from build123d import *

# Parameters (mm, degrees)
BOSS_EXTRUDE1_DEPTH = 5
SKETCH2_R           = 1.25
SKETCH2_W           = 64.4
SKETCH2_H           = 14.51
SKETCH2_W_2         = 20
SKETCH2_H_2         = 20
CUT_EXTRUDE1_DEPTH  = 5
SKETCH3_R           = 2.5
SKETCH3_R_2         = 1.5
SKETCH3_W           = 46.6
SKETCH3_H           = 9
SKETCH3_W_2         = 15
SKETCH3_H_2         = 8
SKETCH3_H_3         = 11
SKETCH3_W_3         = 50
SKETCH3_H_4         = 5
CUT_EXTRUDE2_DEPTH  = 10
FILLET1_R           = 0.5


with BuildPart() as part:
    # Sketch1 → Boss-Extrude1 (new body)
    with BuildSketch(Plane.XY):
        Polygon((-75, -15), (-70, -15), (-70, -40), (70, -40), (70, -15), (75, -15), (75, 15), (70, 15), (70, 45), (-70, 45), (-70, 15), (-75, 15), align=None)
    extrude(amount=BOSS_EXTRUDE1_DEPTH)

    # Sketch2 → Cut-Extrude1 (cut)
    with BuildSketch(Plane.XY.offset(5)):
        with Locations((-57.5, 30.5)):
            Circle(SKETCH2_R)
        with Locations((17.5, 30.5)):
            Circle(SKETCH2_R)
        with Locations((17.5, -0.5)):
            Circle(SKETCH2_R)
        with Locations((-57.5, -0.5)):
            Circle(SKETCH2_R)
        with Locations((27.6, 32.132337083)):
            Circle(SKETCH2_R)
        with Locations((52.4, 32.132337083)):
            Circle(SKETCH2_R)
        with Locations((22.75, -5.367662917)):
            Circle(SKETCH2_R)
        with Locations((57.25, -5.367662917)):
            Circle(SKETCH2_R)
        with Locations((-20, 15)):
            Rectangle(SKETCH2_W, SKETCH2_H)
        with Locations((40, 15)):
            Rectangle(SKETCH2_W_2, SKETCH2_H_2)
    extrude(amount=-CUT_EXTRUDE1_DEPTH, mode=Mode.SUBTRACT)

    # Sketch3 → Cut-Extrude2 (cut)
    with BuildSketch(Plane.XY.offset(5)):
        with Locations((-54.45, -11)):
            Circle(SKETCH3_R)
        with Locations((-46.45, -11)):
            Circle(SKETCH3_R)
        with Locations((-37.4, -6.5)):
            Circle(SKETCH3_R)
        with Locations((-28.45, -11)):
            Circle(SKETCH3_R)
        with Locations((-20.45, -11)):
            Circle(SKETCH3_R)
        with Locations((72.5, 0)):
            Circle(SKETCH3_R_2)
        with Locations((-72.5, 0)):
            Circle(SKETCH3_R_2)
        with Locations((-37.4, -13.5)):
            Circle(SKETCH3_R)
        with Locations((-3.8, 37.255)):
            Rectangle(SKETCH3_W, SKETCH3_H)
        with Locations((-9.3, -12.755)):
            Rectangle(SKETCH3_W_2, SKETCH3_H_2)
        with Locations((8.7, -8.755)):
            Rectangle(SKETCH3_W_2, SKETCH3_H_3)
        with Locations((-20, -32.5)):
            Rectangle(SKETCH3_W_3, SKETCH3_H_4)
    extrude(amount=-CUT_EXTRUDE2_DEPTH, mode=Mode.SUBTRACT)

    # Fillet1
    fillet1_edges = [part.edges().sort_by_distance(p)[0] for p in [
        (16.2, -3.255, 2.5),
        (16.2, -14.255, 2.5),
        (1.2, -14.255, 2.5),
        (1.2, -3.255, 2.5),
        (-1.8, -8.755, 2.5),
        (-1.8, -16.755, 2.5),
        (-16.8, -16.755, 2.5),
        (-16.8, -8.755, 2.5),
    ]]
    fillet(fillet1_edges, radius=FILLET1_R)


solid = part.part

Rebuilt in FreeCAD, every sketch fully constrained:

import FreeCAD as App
import Part
import Sketcher
from FreeCAD import Vector
Q = App.Units.Quantity


def edges_at(feature, points):
    """Names of the edges that pass closest to the given points."""
    edges = feature.Shape.Edges
    near = lambda p: min(range(len(edges)), key=lambda i: edges[i].distToShape(Part.Vertex(*p))[0])
    return sorted({f"Edge{near(p) + 1}" for p in points})

doc = App.newDocument("Part")
body = doc.addObject("PartDesign::Body", "Body")

# Sketch on XY plane
sketch1 = doc.addObject("Sketcher::SketchObject", "Sketch")
body.addObject(sketch1)
sketch1.AttachmentSupport = (doc.XY_Plane, [""])
sketch1.MapMode = "FlatFace"
sketch1.addGeometry([
    Part.LineSegment(Vector(-75, -15, 0), Vector(-70, -15, 0)),  # 0
    Part.LineSegment(Vector(-70, -15, 0), Vector(-70, -40, 0)),  # 1
    Part.LineSegment(Vector(-70, -40, 0), Vector(70, -40, 0)),  # 2
    Part.LineSegment(Vector(70, -40, 0), Vector(70, -15, 0)),  # 3
    Part.LineSegment(Vector(70, -15, 0), Vector(75, -15, 0)),  # 4
    Part.LineSegment(Vector(75, -15, 0), Vector(75, 15, 0)),  # 5
    Part.LineSegment(Vector(75, 15, 0), Vector(70, 15, 0)),  # 6
    Part.LineSegment(Vector(70, 15, 0), Vector(70, 45, 0)),  # 7
    Part.LineSegment(Vector(70, 45, 0), Vector(-70, 45, 0)),  # 8
    Part.LineSegment(Vector(-70, 45, 0), Vector(-70, 15, 0)),  # 9
    Part.LineSegment(Vector(-70, 15, 0), Vector(-75, 15, 0)),  # 10
    Part.LineSegment(Vector(-75, 15, 0), Vector(-75, -15, 0)),  # 11
], False)
sketch1.addConstraint([
    Sketcher.Constraint("Coincident", 0, 2, 1, 1),
    Sketcher.Constraint("Coincident", 1, 2, 2, 1),
    Sketcher.Constraint("Coincident", 2, 2, 3, 1),
    Sketcher.Constraint("Coincident", 3, 2, 4, 1),
    Sketcher.Constraint("Coincident", 4, 2, 5, 1),
    Sketcher.Constraint("Coincident", 5, 2, 6, 1),
    Sketcher.Constraint("Coincident", 6, 2, 7, 1),
    Sketcher.Constraint("Coincident", 7, 2, 8, 1),
    Sketcher.Constraint("Coincident", 8, 2, 9, 1),
    Sketcher.Constraint("Coincident", 9, 2, 10, 1),
    Sketcher.Constraint("Coincident", 10, 2, 11, 1),
    Sketcher.Constraint("Coincident", 11, 2, 0, 1),
    Sketcher.Constraint("Horizontal", 0),
    Sketcher.Constraint("Vertical", 1),
    Sketcher.Constraint("Horizontal", 2),
    Sketcher.Constraint("Vertical", 3),
    Sketcher.Constraint("Horizontal", 4),
    Sketcher.Constraint("Vertical", 5),
    Sketcher.Constraint("Horizontal", 6),
    Sketcher.Constraint("Vertical", 7),
    Sketcher.Constraint("Horizontal", 8),
    Sketcher.Constraint("Vertical", 9),
    Sketcher.Constraint("Horizontal", 10),
    Sketcher.Constraint("Vertical", 11),
    Sketcher.Constraint("Symmetric", 0, 2, 6, 2, -1, 1),
    Sketcher.Constraint("Symmetric", 3, 2, 9, 2, -1, 1),
    Sketcher.Constraint("Symmetric", 0, 2, 3, 2, -2),
    Sketcher.Constraint("Equal", 0, 4),
    Sketcher.Constraint("Equal", 5, 7),
    Sketcher.Constraint("DistanceX", 0, 1, 0, 2, Q("5 mm")),
    Sketcher.Constraint("DistanceX", 2, 1, 2, 2, Q("140 mm")),
    Sketcher.Constraint("DistanceY", 1, 2, 1, 1, Q("25 mm")),
    Sketcher.Constraint("DistanceY", 5, 1, 5, 2, Q("30 mm")),
])
pad1 = doc.addObject("PartDesign::Pad", "Pad")
body.addObject(pad1)
pad1.Profile = sketch1
pad1.Length = 5

# Sketch on XY plane
sketch2 = doc.addObject("Sketcher::SketchObject", "Sketch001")
body.addObject(sketch2)
sketch2.AttachmentSupport = (doc.XY_Plane, [""])
sketch2.MapMode = "FlatFace"
sketch2.AttachmentOffset = App.Placement(Vector(0, 0, 5), App.Rotation())
sketch2.addGeometry([
    Part.Circle(Vector(-57.5, 30.5, 0), Vector(0, 0, 1), 1.25),  # 0
    Part.Circle(Vector(17.5, 30.5, 0), Vector(0, 0, 1), 1.25),  # 1
    Part.Circle(Vector(17.5, -0.5, 0), Vector(0, 0, 1), 1.25),  # 2
    Part.Circle(Vector(-57.5, -0.5, 0), Vector(0, 0, 1), 1.25),  # 3
    Part.Circle(Vector(27.6, 32.132337, 0), Vector(0, 0, 1), 1.25),  # 4
    Part.Circle(Vector(52.4, 32.132337, 0), Vector(0, 0, 1), 1.25),  # 5
    Part.Circle(Vector(22.75, -5.367663, 0), Vector(0, 0, 1), 1.25),  # 6
    Part.Circle(Vector(57.25, -5.367663, 0), Vector(0, 0, 1), 1.25),  # 7
    Part.LineSegment(Vector(-52.2, 22.255, 0), Vector(-52.2, 7.745, 0)),  # 8
    Part.LineSegment(Vector(-52.2, 7.745, 0), Vector(12.2, 7.745, 0)),  # 9
    Part.LineSegment(Vector(12.2, 7.745, 0), Vector(12.2, 22.255, 0)),  # 10
    Part.LineSegment(Vector(12.2, 22.255, 0), Vector(-52.2, 22.255, 0)),  # 11
    Part.LineSegment(Vector(30, 25, 0), Vector(30, 5, 0)),  # 12
    Part.LineSegment(Vector(30, 5, 0), Vector(50, 5, 0)),  # 13
    Part.LineSegment(Vector(50, 5, 0), Vector(50, 25, 0)),  # 14
    Part.LineSegment(Vector(50, 25, 0), Vector(30, 25, 0)),  # 15
], False)
sketch2.addConstraint([
    Sketcher.Constraint("Coincident", 8, 2, 9, 1),
    Sketcher.Constraint("Coincident", 9, 2, 10, 1),
    Sketcher.Constraint("Coincident", 10, 2, 11, 1),
    Sketcher.Constraint("Coincident", 11, 2, 8, 1),
    Sketcher.Constraint("Coincident", 12, 2, 13, 1),
    Sketcher.Constraint("Coincident", 13, 2, 14, 1),
    Sketcher.Constraint("Coincident", 14, 2, 15, 1),
    Sketcher.Constraint("Coincident", 15, 2, 12, 1),
    Sketcher.Constraint("Vertical", 8),
    Sketcher.Constraint("Horizontal", 9),
    Sketcher.Constraint("Vertical", 10),
    Sketcher.Constraint("Horizontal", 11),
    Sketcher.Constraint("Vertical", 12),
    Sketcher.Constraint("Horizontal", 13),
    Sketcher.Constraint("Vertical", 14),
    Sketcher.Constraint("Horizontal", 15),
    Sketcher.Constraint("Equal", 0, 1),
    Sketcher.Constraint("Equal", 1, 2),
    Sketcher.Constraint("Equal", 2, 3),
    Sketcher.Constraint("Equal", 3, 4),
    Sketcher.Constraint("Equal", 4, 5),
    Sketcher.Constraint("Equal", 5, 6),
    Sketcher.Constraint("Equal", 6, 7),
    Sketcher.Constraint("Horizontal", 0, 3, 1, 3),
    Sketcher.Constraint("Horizontal", 2, 3, 3, 3),
    Sketcher.Constraint("Horizontal", 4, 3, 5, 3),
    Sketcher.Constraint("Horizontal", 6, 3, 7, 3),
    Sketcher.Constraint("Vertical", 1, 3, 2, 3),
    Sketcher.Constraint("Vertical", 0, 3, 3, 3),
    Sketcher.Constraint("Equal", 15, 12),
    Sketcher.Constraint("Diameter", 0, Q("2.5 mm")),
    Sketcher.Constraint("DistanceX", 13, 1, 13, 2, Q("20 mm")),
    Sketcher.Constraint("DistanceX", 9, 1, 9, 2, Q("64.4 mm")),
    Sketcher.Constraint("DistanceX", -1, 1, 12, 2, Q("30 mm")),
    Sketcher.Constraint("DistanceY", -1, 1, 12, 2, Q("5 mm")),
    Sketcher.Constraint("DistanceX", 0, 3, 1, 3, Q("75 mm")),
    Sketcher.Constraint("DistanceY", 2, 3, 1, 3, Q("31 mm")),
    Sketcher.Constraint("DistanceY", 8, 2, 8, 1, Q("14.51 mm")),
    Sketcher.Constraint("DistanceX", 0, 3, -1, 1, Q("57.5 mm")),
    Sketcher.Constraint("DistanceY", -1, 1, 0, 3, Q("30.5 mm")),
    Sketcher.Constraint("DistanceX", -1, 1, 4, 3, Q("27.6 mm")),
    Sketcher.Constraint("DistanceX", -1, 1, 5, 3, Q("52.4 mm")),
    Sketcher.Constraint("DistanceX", 8, 2, -1, 1, Q("52.2 mm")),
    Sketcher.Constraint("DistanceY", 6, 3, 4, 3, Q("37.5 mm")),
    Sketcher.Constraint("DistanceX", 6, 3, 7, 3, Q("34.5 mm")),
    Sketcher.Constraint("DistanceX", -1, 1, 6, 3, Q("22.75 mm")),
    Sketcher.Constraint("DistanceY", -1, 1, 8, 2, Q("7.745 mm")),
    Sketcher.Constraint("DistanceY", -1, 1, 4, 3, Q("32.132337 mm")),
])
pocket1 = doc.addObject("PartDesign::Pocket", "Pocket")
body.addObject(pocket1)
pocket1.Profile = sketch2
pocket1.Length = 5

# Sketch on XY plane
sketch3 = doc.addObject("Sketcher::SketchObject", "Sketch002")
body.addObject(sketch3)
sketch3.AttachmentSupport = (doc.XY_Plane, [""])
sketch3.MapMode = "FlatFace"
sketch3.AttachmentOffset = App.Placement(Vector(0, 0, 5), App.Rotation())
sketch3.addGeometry([
    Part.Circle(Vector(-54.45, -11, 0), Vector(0, 0, 1), 2.5),  # 0
    Part.Circle(Vector(-46.45, -11, 0), Vector(0, 0, 1), 2.5),  # 1
    Part.Circle(Vector(-37.4, -6.5, 0), Vector(0, 0, 1), 2.5),  # 2
    Part.Circle(Vector(-28.45, -11, 0), Vector(0, 0, 1), 2.5),  # 3
    Part.Circle(Vector(-20.45, -11, 0), Vector(0, 0, 1), 2.5),  # 4
    Part.Circle(Vector(72.5, 0, 0), Vector(0, 0, 1), 1.5),  # 5
    Part.Circle(Vector(-72.5, 0, 0), Vector(0, 0, 1), 1.5),  # 6
    Part.Circle(Vector(-37.4, -13.5, 0), Vector(0, 0, 1), 2.5),  # 7
    Part.LineSegment(Vector(-27.1, 41.755, 0), Vector(-27.1, 32.755, 0)),  # 8
    Part.LineSegment(Vector(-27.1, 32.755, 0), Vector(19.5, 32.755, 0)),  # 9
    Part.LineSegment(Vector(19.5, 32.755, 0), Vector(19.5, 41.755, 0)),  # 10
    Part.LineSegment(Vector(19.5, 41.755, 0), Vector(-27.1, 41.755, 0)),  # 11
    Part.LineSegment(Vector(-16.8, -8.755, 0), Vector(-16.8, -16.755, 0)),  # 12
    Part.LineSegment(Vector(-16.8, -16.755, 0), Vector(-1.8, -16.755, 0)),  # 13
    Part.LineSegment(Vector(-1.8, -16.755, 0), Vector(-1.8, -8.755, 0)),  # 14
    Part.LineSegment(Vector(-1.8, -8.755, 0), Vector(-16.8, -8.755, 0)),  # 15
    Part.LineSegment(Vector(1.2, -3.255, 0), Vector(1.2, -14.255, 0)),  # 16
    Part.LineSegment(Vector(1.2, -14.255, 0), Vector(16.2, -14.255, 0)),  # 17
    Part.LineSegment(Vector(16.2, -14.255, 0), Vector(16.2, -3.255, 0)),  # 18
    Part.LineSegment(Vector(16.2, -3.255, 0), Vector(1.2, -3.255, 0)),  # 19
    Part.LineSegment(Vector(-45, -30, 0), Vector(-45, -35, 0)),  # 20
    Part.LineSegment(Vector(-45, -35, 0), Vector(5, -35, 0)),  # 21
    Part.LineSegment(Vector(5, -35, 0), Vector(5, -30, 0)),  # 22
    Part.LineSegment(Vector(5, -30, 0), Vector(-45, -30, 0)),  # 23
], False)
sketch3.addConstraint([
    Sketcher.Constraint("Coincident", 8, 2, 9, 1),
    Sketcher.Constraint("Coincident", 9, 2, 10, 1),
    Sketcher.Constraint("Coincident", 10, 2, 11, 1),
    Sketcher.Constraint("Coincident", 11, 2, 8, 1),
    Sketcher.Constraint("Coincident", 12, 2, 13, 1),
    Sketcher.Constraint("Coincident", 13, 2, 14, 1),
    Sketcher.Constraint("Coincident", 14, 2, 15, 1),
    Sketcher.Constraint("Coincident", 15, 2, 12, 1),
    Sketcher.Constraint("Coincident", 16, 2, 17, 1),
    Sketcher.Constraint("Coincident", 17, 2, 18, 1),
    Sketcher.Constraint("Coincident", 18, 2, 19, 1),
    Sketcher.Constraint("Coincident", 19, 2, 16, 1),
    Sketcher.Constraint("Coincident", 20, 2, 21, 1),
    Sketcher.Constraint("Coincident", 21, 2, 22, 1),
    Sketcher.Constraint("Coincident", 22, 2, 23, 1),
    Sketcher.Constraint("Coincident", 23, 2, 20, 1),
    Sketcher.Constraint("Vertical", 8),
    Sketcher.Constraint("Horizontal", 9),
    Sketcher.Constraint("Vertical", 10),
    Sketcher.Constraint("Horizontal", 11),
    Sketcher.Constraint("Vertical", 12),
    Sketcher.Constraint("Horizontal", 13),
    Sketcher.Constraint("Vertical", 14),
    Sketcher.Constraint("Horizontal", 15),
    Sketcher.Constraint("Vertical", 16),
    Sketcher.Constraint("Horizontal", 17),
    Sketcher.Constraint("Vertical", 18),
    Sketcher.Constraint("Horizontal", 19),
    Sketcher.Constraint("Vertical", 20),
    Sketcher.Constraint("Horizontal", 21),
    Sketcher.Constraint("Vertical", 22),
    Sketcher.Constraint("Horizontal", 23),
    Sketcher.Constraint("Equal", 0, 1),
    Sketcher.Constraint("Equal", 1, 2),
    Sketcher.Constraint("Equal", 2, 3),
    Sketcher.Constraint("Equal", 3, 4),
    Sketcher.Constraint("Equal", 5, 6),
    Sketcher.Constraint("Equal", 4, 7),
    Sketcher.Constraint("Symmetric", 5, 3, 6, 3, -1, 1),
    Sketcher.Constraint("PointOnObject", 5, 3, -1),
    Sketcher.Constraint("Horizontal", 0, 3, 1, 3),
    Sketcher.Constraint("Horizontal", 1, 3, 3, 3),
    Sketcher.Constraint("Horizontal", 3, 3, 4, 3),
    Sketcher.Constraint("Vertical", 2, 3, 7, 3),
    Sketcher.Constraint("Equal", 15, 17),
    Sketcher.Constraint("Diameter", 0, Q("5 mm")),
    Sketcher.Constraint("Diameter", 5, Q("3 mm")),
    Sketcher.Constraint("DistanceX", 13, 1, 13, 2, Q("15 mm")),
    Sketcher.Constraint("DistanceX", 21, 1, 21, 2, Q("50 mm")),
    Sketcher.Constraint("DistanceY", 8, 2, 8, 1, Q("9 mm")),
    Sketcher.Constraint("DistanceY", 12, 2, 12, 1, Q("8 mm")),
    Sketcher.Constraint("DistanceY", 16, 2, 16, 1, Q("11 mm")),
    Sketcher.Constraint("DistanceY", 20, 2, 20, 1, Q("5 mm")),
    Sketcher.Constraint("DistanceX", 9, 1, 9, 2, Q("46.6 mm")),
    Sketcher.Constraint("DistanceY", 0, 3, -1, 1, Q("11 mm")),
    Sketcher.Constraint("DistanceX", 20, 2, -1, 1, Q("45 mm")),
    Sketcher.Constraint("DistanceY", 20, 2, -1, 1, Q("35 mm")),
    Sketcher.Constraint("DistanceX", 0, 3, 1, 3, Q("8 mm")),
    Sketcher.Constraint("DistanceX", 1, 3, 3, 3, Q("18 mm")),
    Sketcher.Constraint("DistanceX", 3, 3, 4, 3, Q("8 mm")),
    Sketcher.Constraint("DistanceY", 7, 3, 2, 3, Q("7 mm")),
    Sketcher.Constraint("DistanceX", 9, 2, 5, 3, Q("53 mm")),
    Sketcher.Constraint("DistanceX", 13, 2, 16, 2, Q("3 mm")),
    Sketcher.Constraint("DistanceX", 2, 3, -1, 1, Q("37.4 mm")),
    Sketcher.Constraint("DistanceY", 2, 3, -1, 1, Q("6.5 mm")),
    Sketcher.Constraint("DistanceX", -1, 1, 5, 3, Q("72.5 mm")),
    Sketcher.Constraint("DistanceX", 12, 2, -1, 1, Q("16.8 mm")),
    Sketcher.Constraint("DistanceY", 13, 2, 16, 2, Q("2.5 mm")),
    Sketcher.Constraint("DistanceX", 0, 3, -1, 1, Q("54.45 mm")),
    Sketcher.Constraint("DistanceY", -1, 1, 8, 2, Q("32.755 mm")),
    Sketcher.Constraint("DistanceY", 12, 2, -1, 1, Q("16.755 mm")),
])
pocket2 = doc.addObject("PartDesign::Pocket", "Pocket001")
body.addObject(pocket2)
pocket2.Profile = sketch3
pocket2.Length = 10
doc.recompute()

fillet = doc.addObject("PartDesign::Fillet", "Fillet")
body.addObject(fillet)
fillet.Base = (pocket2, edges_at(pocket2, [
    (16.2, -3.255, 2.5),
    (16.2, -14.255, 2.5),
    (1.2, -14.255, 2.5),
    (1.2, -3.255, 2.5),
    (-1.8, -8.755, 2.5),
    (-1.8, -16.755, 2.5),
    (-16.8, -16.755, 2.5),
    (-16.8, -8.755, 2.5),
]))
fillet.Radius = 0.5

doc.recompute()
